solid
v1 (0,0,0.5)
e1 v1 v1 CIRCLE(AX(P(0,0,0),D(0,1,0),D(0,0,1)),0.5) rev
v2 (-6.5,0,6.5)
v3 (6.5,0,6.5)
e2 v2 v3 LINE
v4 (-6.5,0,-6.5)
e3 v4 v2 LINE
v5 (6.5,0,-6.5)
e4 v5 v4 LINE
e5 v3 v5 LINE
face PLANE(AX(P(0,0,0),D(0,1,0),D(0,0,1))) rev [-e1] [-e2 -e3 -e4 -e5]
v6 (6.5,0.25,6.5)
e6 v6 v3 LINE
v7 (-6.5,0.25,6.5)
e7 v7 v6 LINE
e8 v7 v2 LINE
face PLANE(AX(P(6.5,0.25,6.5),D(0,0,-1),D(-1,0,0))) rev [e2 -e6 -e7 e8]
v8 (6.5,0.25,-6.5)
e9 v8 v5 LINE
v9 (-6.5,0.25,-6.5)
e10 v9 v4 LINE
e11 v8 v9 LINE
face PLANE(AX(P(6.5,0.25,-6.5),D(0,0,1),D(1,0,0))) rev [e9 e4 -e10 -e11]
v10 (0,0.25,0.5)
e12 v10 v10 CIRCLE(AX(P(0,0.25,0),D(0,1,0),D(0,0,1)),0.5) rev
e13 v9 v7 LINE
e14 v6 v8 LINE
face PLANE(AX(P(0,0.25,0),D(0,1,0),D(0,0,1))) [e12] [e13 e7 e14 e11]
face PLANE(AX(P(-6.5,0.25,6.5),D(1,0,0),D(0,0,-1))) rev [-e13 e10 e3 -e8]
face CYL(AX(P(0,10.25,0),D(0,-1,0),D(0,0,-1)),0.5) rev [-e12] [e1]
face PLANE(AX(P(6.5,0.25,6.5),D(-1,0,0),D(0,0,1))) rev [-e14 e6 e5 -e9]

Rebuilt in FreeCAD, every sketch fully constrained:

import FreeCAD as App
import Part
import Sketcher
from FreeCAD import Vector
Q = App.Units.Quantity

doc = App.newDocument("Part")
params = doc.addObject("Spreadsheet::Sheet", "Params")
for row, (alias, value) in enumerate([
    ("sketch1_width", "13 mm"),
    ("pad1_length", "0.25 mm"),
    ("sketch2_diameter", "1 mm"),
], start=1):
    params.set(f"A{row}", alias)
    params.set(f"B{row}", "=" + value)
    params.setAlias(f"B{row}", alias)

body = doc.addObject("PartDesign::Body", "Body")

sketch1 = body.newObject("Sketcher::SketchObject", "Sketch")
sketch1.AttachmentSupport = (doc.getObject("XZ_Plane"), [""])
sketch1.MapMode = "FlatFace"
sketch1.addGeometry([
    Part.LineSegment(Vector(-6.5, -6.5, 0), Vector(-6.5, 6.5, 0)),
    Part.LineSegment(Vector(-6.5, 6.5, 0), Vector(6.5, 6.5, 0)),
    Part.LineSegment(Vector(6.5, 6.5, 0), Vector(6.5, -6.5, 0)),
    Part.LineSegment(Vector(6.5, -6.5, 0), Vector(-6.5, -6.5, 0)),
], False)
sketch1.addConstraint([
    Sketcher.Constraint("Coincident", 0, 2, 1, 1),
    Sketcher.Constraint("Coincident", 1, 2, 2, 1),
    Sketcher.Constraint("Coincident", 2, 2, 3, 1),
    Sketcher.Constraint("Coincident", 3, 2, 0, 1),
    Sketcher.Constraint("Vertical", 0),
    Sketcher.Constraint("Horizontal", 1),
    Sketcher.Constraint("Vertical", 2),
    Sketcher.Constraint("Horizontal", 3),
    Sketcher.Constraint("Symmetric", 0, 2, 2, 2, -1, 1),
    Sketcher.Constraint("Equal", 3, 0),
    Sketcher.Constraint("DistanceX", 1, 1, 1, 2, Q("13 mm")),
])
sketch1.setExpression("Constraints[10]", "Params.sketch1_width")
pad1 = body.newObject("PartDesign::Pad", "Pad")
pad1.Profile = sketch1
pad1.setExpression("Length", "Params.pad1_length")
pad1.Reversed = True

sketch2 = body.newObject("Sketcher::SketchObject", "Sketch001")
sketch2.AttachmentSupport = (doc.getObject("XZ_Plane"), [""])
sketch2.MapMode = "FlatFace"
sketch2.AttachmentOffset = App.Placement(Vector(0, 0, -0.25), App.Rotation())
sketch2.addGeometry(Part.Circle(Vector(0, 0, 0), Vector(0, 0, 1), 0.5), False)
sketch2.addConstraint([
    Sketcher.Constraint("Coincident", 0, 3, -1, 1),
    Sketcher.Constraint("Diameter", 0, Q("1 mm")),
])
sketch2.setExpression("Constraints[1]", "Params.sketch2_diameter")
pocket1 = body.newObject("PartDesign::Pocket", "Pocket")
pocket1.Profile = sketch2
pocket1.Type = "ThroughAll"
pocket1.Midplane = True

doc.recompute()
